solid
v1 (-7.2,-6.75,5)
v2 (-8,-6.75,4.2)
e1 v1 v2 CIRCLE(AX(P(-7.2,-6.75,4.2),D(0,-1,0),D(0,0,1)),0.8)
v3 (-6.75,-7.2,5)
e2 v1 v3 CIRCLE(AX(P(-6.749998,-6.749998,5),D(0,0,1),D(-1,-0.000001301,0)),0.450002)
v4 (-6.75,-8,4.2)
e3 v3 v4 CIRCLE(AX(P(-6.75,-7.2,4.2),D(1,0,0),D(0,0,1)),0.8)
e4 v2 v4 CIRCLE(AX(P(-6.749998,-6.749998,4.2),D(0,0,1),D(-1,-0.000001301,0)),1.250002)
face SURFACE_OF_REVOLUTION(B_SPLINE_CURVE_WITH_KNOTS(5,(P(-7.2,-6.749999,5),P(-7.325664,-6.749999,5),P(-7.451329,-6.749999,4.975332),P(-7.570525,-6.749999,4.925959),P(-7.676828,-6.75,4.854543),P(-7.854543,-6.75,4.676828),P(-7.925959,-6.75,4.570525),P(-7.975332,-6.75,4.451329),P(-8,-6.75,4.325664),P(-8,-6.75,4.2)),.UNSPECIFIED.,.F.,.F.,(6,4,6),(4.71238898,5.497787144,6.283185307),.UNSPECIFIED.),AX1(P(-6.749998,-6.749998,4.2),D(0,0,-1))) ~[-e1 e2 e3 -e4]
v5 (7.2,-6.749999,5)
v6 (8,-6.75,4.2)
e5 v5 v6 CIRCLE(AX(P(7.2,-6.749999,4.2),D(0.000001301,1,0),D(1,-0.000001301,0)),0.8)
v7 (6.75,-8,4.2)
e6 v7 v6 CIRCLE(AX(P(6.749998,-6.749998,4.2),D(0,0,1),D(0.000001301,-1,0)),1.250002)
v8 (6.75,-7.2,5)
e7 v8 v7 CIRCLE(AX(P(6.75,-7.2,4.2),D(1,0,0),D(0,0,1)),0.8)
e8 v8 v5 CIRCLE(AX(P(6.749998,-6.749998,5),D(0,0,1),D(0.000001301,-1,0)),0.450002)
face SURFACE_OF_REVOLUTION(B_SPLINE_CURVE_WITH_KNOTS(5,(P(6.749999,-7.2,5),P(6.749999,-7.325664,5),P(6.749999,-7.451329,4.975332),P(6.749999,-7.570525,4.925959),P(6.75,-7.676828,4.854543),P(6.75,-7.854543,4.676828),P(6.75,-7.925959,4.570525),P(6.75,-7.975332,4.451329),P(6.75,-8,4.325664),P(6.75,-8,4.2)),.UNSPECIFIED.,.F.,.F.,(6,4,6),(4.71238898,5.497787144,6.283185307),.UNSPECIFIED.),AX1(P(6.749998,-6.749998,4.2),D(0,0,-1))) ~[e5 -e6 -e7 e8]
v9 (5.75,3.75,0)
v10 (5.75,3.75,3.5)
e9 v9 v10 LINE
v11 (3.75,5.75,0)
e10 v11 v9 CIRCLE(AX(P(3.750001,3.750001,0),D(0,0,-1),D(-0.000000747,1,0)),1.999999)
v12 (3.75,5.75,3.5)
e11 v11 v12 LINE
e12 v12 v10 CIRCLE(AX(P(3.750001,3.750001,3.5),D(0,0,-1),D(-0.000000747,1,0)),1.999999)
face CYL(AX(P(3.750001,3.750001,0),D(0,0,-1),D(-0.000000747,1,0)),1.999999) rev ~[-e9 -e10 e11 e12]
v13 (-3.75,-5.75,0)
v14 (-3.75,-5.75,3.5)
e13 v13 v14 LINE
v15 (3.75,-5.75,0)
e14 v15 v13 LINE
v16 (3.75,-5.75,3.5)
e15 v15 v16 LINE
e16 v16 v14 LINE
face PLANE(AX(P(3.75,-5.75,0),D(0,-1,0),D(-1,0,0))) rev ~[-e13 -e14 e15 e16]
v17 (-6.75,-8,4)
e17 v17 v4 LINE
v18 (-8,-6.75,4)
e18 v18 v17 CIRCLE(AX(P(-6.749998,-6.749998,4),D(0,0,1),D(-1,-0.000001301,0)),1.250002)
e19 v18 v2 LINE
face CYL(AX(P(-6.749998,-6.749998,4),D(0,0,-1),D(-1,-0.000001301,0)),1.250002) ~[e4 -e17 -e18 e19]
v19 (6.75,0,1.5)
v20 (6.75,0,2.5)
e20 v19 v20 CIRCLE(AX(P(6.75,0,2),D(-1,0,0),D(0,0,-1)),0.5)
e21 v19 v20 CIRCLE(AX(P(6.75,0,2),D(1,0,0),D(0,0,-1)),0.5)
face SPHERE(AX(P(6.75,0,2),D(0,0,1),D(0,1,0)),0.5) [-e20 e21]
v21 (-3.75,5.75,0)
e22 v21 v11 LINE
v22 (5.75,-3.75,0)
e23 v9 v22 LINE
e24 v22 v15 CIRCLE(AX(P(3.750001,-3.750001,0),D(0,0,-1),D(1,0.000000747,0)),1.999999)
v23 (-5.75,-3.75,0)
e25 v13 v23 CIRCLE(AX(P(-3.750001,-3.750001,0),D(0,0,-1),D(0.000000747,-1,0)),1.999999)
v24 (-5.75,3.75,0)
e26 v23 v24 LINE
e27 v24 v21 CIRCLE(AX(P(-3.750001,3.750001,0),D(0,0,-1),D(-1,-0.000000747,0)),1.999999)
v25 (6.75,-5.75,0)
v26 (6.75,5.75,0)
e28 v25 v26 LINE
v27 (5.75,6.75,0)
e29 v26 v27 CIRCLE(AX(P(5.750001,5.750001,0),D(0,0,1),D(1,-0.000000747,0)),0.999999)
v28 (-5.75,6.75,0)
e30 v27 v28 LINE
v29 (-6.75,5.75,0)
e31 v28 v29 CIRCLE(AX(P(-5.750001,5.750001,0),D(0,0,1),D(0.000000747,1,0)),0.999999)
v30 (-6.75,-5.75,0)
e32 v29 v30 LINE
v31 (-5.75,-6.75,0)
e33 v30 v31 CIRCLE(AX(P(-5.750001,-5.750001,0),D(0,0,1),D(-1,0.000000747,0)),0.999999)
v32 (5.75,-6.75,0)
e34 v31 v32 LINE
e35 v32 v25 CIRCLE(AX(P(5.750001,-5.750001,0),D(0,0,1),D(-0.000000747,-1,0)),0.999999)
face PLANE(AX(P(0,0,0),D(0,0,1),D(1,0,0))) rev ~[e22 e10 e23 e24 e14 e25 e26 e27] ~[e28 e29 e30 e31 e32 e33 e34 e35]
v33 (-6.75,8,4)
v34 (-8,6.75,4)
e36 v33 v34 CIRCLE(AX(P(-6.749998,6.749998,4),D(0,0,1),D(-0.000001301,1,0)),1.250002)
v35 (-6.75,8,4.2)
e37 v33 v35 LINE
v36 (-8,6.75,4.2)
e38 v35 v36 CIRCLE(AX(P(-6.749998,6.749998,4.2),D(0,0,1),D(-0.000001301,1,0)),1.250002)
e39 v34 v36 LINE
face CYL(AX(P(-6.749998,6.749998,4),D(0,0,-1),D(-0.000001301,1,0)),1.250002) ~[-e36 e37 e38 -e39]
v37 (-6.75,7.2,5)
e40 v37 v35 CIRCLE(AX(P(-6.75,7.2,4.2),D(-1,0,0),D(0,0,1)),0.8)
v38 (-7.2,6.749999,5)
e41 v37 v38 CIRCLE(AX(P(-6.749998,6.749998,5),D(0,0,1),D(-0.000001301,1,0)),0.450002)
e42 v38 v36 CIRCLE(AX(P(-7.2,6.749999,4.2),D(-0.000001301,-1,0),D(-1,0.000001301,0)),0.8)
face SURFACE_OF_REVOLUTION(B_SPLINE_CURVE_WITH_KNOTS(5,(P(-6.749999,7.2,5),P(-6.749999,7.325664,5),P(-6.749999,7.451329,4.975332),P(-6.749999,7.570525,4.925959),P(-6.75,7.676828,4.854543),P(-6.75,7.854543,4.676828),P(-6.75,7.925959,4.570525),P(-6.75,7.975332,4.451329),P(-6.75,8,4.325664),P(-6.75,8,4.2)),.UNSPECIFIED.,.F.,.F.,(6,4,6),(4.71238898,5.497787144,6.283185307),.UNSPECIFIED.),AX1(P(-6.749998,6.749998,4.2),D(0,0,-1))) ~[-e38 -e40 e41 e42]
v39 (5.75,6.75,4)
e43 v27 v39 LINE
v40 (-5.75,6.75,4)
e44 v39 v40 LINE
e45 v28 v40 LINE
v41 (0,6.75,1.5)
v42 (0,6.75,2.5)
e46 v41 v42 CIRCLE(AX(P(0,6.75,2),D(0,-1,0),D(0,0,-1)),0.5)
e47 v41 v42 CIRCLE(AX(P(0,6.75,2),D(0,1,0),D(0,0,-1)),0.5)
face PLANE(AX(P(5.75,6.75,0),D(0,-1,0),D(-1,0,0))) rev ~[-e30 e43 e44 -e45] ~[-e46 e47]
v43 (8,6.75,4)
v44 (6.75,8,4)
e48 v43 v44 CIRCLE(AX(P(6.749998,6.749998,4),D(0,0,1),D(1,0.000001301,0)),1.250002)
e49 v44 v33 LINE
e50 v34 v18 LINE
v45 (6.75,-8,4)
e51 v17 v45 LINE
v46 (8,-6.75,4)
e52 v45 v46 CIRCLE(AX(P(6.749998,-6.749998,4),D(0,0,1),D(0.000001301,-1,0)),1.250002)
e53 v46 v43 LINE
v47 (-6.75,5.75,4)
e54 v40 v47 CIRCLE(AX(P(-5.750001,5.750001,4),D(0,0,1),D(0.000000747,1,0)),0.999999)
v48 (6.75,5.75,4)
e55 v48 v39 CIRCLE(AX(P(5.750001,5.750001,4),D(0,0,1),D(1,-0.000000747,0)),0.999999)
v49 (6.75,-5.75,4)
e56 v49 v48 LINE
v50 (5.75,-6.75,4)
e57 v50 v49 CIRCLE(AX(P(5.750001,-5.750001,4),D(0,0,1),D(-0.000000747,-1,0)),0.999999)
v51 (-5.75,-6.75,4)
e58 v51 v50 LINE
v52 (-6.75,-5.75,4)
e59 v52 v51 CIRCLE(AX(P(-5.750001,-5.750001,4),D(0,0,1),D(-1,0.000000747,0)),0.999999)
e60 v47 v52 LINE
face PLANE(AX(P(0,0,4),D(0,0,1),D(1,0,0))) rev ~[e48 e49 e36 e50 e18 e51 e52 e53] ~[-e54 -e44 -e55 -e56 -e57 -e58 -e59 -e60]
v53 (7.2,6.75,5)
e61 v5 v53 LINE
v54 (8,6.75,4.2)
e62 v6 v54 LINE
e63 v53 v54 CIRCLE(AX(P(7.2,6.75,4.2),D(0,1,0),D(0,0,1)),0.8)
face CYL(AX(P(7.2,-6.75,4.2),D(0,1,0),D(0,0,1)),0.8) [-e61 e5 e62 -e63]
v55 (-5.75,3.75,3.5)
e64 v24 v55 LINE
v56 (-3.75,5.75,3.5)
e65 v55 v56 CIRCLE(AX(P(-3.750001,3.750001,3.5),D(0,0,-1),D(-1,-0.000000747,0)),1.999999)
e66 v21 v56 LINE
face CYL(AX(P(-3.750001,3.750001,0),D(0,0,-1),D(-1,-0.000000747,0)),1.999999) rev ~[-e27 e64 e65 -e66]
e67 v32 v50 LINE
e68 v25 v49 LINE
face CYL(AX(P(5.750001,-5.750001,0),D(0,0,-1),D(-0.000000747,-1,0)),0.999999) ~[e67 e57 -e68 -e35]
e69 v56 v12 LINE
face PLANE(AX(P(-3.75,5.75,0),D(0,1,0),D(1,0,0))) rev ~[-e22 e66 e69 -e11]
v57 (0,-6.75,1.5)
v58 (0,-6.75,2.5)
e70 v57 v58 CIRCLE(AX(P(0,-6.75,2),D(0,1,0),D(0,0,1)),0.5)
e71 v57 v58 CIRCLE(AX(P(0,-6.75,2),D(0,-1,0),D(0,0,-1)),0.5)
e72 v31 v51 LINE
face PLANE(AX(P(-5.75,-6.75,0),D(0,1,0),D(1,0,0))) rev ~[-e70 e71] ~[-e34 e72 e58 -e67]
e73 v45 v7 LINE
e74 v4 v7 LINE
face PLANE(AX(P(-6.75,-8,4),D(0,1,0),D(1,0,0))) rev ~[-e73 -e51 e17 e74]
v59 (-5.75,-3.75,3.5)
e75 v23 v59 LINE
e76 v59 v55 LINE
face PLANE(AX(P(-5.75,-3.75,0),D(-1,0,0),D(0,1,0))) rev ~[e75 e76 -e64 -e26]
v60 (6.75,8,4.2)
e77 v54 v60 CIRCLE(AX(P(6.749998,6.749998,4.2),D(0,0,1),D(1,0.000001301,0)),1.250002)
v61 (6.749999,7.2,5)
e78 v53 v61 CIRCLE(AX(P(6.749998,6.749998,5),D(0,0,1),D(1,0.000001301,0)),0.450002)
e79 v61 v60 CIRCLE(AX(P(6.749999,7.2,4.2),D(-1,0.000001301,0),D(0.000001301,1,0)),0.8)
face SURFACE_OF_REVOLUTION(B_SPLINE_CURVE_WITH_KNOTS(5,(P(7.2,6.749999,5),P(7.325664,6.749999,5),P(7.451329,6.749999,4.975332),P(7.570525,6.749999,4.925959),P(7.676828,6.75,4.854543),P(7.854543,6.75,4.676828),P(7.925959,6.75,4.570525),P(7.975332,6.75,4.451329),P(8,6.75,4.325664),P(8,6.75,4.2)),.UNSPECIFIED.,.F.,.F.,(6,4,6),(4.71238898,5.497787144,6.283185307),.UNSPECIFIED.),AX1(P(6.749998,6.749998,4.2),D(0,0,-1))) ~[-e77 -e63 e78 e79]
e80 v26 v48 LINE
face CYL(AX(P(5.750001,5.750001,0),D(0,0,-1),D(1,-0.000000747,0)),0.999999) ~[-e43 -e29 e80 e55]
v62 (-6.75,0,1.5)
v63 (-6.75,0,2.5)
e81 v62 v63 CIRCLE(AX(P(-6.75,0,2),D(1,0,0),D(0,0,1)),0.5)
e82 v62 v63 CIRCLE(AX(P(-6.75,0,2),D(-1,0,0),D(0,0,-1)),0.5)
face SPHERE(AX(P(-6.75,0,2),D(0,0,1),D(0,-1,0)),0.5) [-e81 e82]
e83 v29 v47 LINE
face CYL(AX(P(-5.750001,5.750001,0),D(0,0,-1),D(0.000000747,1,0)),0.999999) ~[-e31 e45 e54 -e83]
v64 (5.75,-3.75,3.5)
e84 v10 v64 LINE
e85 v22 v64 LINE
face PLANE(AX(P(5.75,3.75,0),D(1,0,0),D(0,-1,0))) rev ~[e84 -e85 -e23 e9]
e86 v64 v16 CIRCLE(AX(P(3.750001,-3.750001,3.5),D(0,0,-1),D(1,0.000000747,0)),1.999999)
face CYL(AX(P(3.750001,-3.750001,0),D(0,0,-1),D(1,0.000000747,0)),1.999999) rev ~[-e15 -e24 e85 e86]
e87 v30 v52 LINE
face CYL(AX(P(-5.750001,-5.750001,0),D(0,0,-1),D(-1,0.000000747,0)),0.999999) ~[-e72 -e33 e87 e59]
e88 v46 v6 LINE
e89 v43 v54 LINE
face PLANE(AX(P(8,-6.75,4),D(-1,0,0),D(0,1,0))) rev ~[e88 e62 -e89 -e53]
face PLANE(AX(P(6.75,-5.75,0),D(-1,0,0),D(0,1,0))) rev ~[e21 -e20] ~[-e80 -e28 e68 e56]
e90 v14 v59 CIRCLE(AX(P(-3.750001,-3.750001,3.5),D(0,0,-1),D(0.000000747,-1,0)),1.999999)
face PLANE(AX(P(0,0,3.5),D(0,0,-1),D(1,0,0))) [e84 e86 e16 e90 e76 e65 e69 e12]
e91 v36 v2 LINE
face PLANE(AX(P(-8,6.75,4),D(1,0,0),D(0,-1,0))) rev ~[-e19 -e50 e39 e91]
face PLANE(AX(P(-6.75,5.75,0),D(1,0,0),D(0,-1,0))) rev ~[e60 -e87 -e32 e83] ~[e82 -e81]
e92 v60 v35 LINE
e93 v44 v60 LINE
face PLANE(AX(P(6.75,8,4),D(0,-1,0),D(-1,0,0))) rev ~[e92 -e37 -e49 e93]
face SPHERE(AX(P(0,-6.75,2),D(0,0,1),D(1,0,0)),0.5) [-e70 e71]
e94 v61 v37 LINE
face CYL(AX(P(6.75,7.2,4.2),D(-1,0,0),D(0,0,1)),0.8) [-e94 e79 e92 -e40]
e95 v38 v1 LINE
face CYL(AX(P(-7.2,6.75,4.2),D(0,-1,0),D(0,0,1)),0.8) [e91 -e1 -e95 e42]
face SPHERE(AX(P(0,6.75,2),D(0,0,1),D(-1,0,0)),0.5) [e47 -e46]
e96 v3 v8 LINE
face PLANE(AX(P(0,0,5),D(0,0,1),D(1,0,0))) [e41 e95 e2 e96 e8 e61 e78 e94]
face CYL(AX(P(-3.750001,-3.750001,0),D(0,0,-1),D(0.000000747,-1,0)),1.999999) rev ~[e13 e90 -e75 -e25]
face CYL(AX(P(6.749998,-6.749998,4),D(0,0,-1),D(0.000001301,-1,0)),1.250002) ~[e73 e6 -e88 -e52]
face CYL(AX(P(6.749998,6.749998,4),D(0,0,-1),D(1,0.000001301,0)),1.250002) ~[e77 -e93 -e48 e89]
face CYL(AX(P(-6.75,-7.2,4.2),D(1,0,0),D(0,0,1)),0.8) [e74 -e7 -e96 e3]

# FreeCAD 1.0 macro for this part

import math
import FreeCAD as App
import Part
import Sketcher


def edges_at(feature, points):
    """Names of the edges that pass closest to the given points."""
    edges = feature.Shape.Edges
    near = lambda p: min(range(len(edges)), key=lambda i: edges[i].distToShape(Part.Vertex(*p))[0])
    return sorted({f"Edge{near(p) + 1}" for p in points})

doc = App.newDocument("Part")
body = doc.addObject("PartDesign::Body", "Body")

# Sketch on XY plane
sketch1 = doc.addObject("Sketcher::SketchObject", "Sketch")
body.addObject(sketch1)
sketch1.AttachmentSupport = (doc.XY_Plane, [""])
sketch1.MapMode = "FlatFace"
sketch1.addGeometry([
    Part.LineSegment(App.Vector(5.75, 6.75, 0), App.Vector(-5.75, 6.75, 0)),  # 0
    Part.ArcOfCircle(Part.Circle(App.Vector(-5.750001, 5.750001, 0), App.Vector(0, 0, 1), 0.999999), math.radians(89.999957), math.radians(180.000043)),  # 1
    Part.LineSegment(App.Vector(-6.75, 5.75, 0), App.Vector(-6.75, -5.75, 0)),  # 2
    Part.ArcOfCircle(Part.Circle(App.Vector(-5.750001, -5.750001, 0), App.Vector(0, 0, 1), 0.999999), math.radians(179.999957), math.radians(270.000043)),  # 3
    Part.LineSegment(App.Vector(-5.75, -6.75, 0), App.Vector(5.75, -6.75, 0)),  # 4
    Part.ArcOfCircle(Part.Circle(App.Vector(5.750001, -5.750001, 0), App.Vector(0, 0, 1), 0.999999), math.radians(-90.000043), math.radians(0.000043)),  # 5
    Part.LineSegment(App.Vector(6.75, -5.75, 0), App.Vector(6.75, 5.75, 0)),  # 6
    Part.ArcOfCircle(Part.Circle(App.Vector(5.750001, 5.750001, 0), App.Vector(0, 0, 1), 0.999999), math.radians(-0.000043), math.radians(90.000043)),  # 7
], False)
sketch1.addConstraint([
    Sketcher.Constraint("Tangent", 0, 2, 1, 1),
    Sketcher.Constraint("Tangent", 1, 2, 2, 1),
    Sketcher.Constraint("Tangent", 2, 2, 3, 1),
    Sketcher.Constraint("Tangent", 3, 2, 4, 1),
    Sketcher.Constraint("Tangent", 4, 2, 5, 1),
    Sketcher.Constraint("Tangent", 5, 2, 6, 1),
    Sketcher.Constraint("Tangent", 6, 2, 7, 1),
    Sketcher.Constraint("Tangent", 7, 2, 0, 1),
    Sketcher.Constraint("Horizontal", 0),
    Sketcher.Constraint("Vertical", 2),
    Sketcher.Constraint("Horizontal", 4),
    Sketcher.Constraint("Vertical", 6),
    Sketcher.Constraint("Equal", 1, 3),
    Sketcher.Constraint("Equal", 3, 5),
    Sketcher.Constraint("Equal", 5, 7),
    Sketcher.Constraint("Symmetric", 1, 3, 5, 3, -1, 1),
    Sketcher.Constraint("Equal", 4, 2),
    Sketcher.Constraint("Radius", 1, 0.999999),
    Sketcher.Constraint("DistanceX", 0, 2, 0, 1, 11.5),
])
pad1 = doc.addObject("PartDesign::Pad", "Pad")
body.addObject(pad1)
pad1.Profile = sketch1
pad1.Length = 4

# Sketch on XY plane
sketch2 = doc.addObject("Sketcher::SketchObject", "Sketch001")
body.addObject(sketch2)
sketch2.AttachmentSupport = (doc.XY_Plane, [""])
sketch2.MapMode = "FlatFace"
sketch2.AttachmentOffset = App.Placement(App.Vector(0, 0, 4), App.Rotation())
sketch2.addGeometry([
    Part.LineSegment(App.Vector(6.75, 8, 0), App.Vector(-6.75, 8, 0)),  # 0
    Part.ArcOfCircle(Part.Circle(App.Vector(-6.749998, 6.749998, 0), App.Vector(0, 0, 1), 1.250002), math.radians(90.000075), math.radians(179.999925)),  # 1
    Part.LineSegment(App.Vector(-8, 6.75, 0), App.Vector(-8, -6.75, 0)),  # 2
    Part.ArcOfCircle(Part.Circle(App.Vector(-6.749998, -6.749998, 0), App.Vector(0, 0, 1), 1.250002), math.radians(-179.999925), math.radians(-90.000075)),  # 3
    Part.LineSegment(App.Vector(-6.75, -8, 0), App.Vector(6.75, -8, 0)),  # 4
    Part.ArcOfCircle(Part.Circle(App.Vector(6.749998, -6.749998, 0), App.Vector(0, 0, 1), 1.250002), math.radians(-89.999925), math.radians(-0.000075)),  # 5
    Part.LineSegment(App.Vector(8, -6.75, 0), App.Vector(8, 6.75, 0)),  # 6
    Part.ArcOfCircle(Part.Circle(App.Vector(6.749998, 6.749998, 0), App.Vector(0, 0, 1), 1.250002), math.radians(0.000075), math.radians(89.999925)),  # 7
], False)
sketch2.addConstraint([
    Sketcher.Constraint("Tangent", 0, 2, 1, 1),
    Sketcher.Constraint("Tangent", 1, 2, 2, 1),
    Sketcher.Constraint("Tangent", 2, 2, 3, 1),
    Sketcher.Constraint("Tangent", 3, 2, 4, 1),
    Sketcher.Constraint("Tangent", 4, 2, 5, 1),
    Sketcher.Constraint("Tangent", 5, 2, 6, 1),
    Sketcher.Constraint("Tangent", 6, 2, 7, 1),
    Sketcher.Constraint("Tangent", 7, 2, 0, 1),
    Sketcher.Constraint("Horizontal", 0),
    Sketcher.Constraint("Vertical", 2),
    Sketcher.Constraint("Horizontal", 4),
    Sketcher.Constraint("Vertical", 6),
    Sketcher.Constraint("Equal", 1, 3),
    Sketcher.Constraint("Equal", 3, 5),
    Sketcher.Constraint("Equal", 5, 7),
    Sketcher.Constraint("Symmetric", 1, 3, 5, 3, -1, 1),
    Sketcher.Constraint("Equal", 4, 2),
    Sketcher.Constraint("Radius", 1, 1.250002),
    Sketcher.Constraint("DistanceX", 0, 2, 0, 1, 13.5),
])
pad2 = doc.addObject("PartDesign::Pad", "Pad001")
body.addObject(pad2)
pad2.Profile = sketch2
pad2.Length = 1
doc.recompute()

fillet = doc.addObject("PartDesign::Fillet", "Fillet")
body.addObject(fillet)
fillet.Base = (pad2, edges_at(pad2, [
    (0, -8, 5),
    (-7.634, -7.634, 5),
    (-8, 0, 5),
    (-7.634, 7.634, 5),
    (0, 8, 5),
    (7.634, 7.634, 5),
    (8, 0, 5),
    (7.634, -7.634, 5),
]))
fillet.Radius = 0.8

# Sketch on XZ plane
sketch3 = doc.addObject("Sketcher::SketchObject", "Sketch002")
body.addObject(sketch3)
sketch3.AttachmentSupport = (doc.XZ_Plane, [""])
sketch3.MapMode = "FlatFace"
sketch3.AttachmentOffset = App.Placement(App.Vector(0, 0, 6.75), App.Rotation())
sketch3.addGeometry([
    Part.ArcOfCircle(Part.Circle(App.Vector(0, 2, 0), App.Vector(0, 0, 1), 0.5), math.radians(-90), math.radians(90)),
    Part.LineSegment(App.Vector(0, 2.5, 0), App.Vector(0, 1.5, 0)),
], False)
sketch3.addConstraint([
    Sketcher.Constraint("Coincident", 0, 1, 1, 2),
    Sketcher.Constraint("Coincident", 1, 1, 0, 2),
    Sketcher.Constraint("Vertical", 1),
    Sketcher.Constraint("PointOnObject", 0, 3, -2),
    Sketcher.Constraint("PointOnObject", 0, 1, -2),
    Sketcher.Constraint("Radius", 0, 0.5),
    Sketcher.Constraint("DistanceY", -1, 1, 0, 3, 2.0),
])
revolution = doc.addObject("PartDesign::Revolution", "Revolution")
body.addObject(revolution)
revolution.Profile = sketch3
revolution.ReferenceAxis = (sketch3, ["V_Axis"])
revolution.Angle = 360
doc.recompute()

polarpattern = doc.addObject("PartDesign::PolarPattern", "PolarPattern")
body.addObject(polarpattern)
polarpattern.Originals = [revolution]
polarpattern.Axis = (doc.Z_Axis, [""])
polarpattern.Angle = 360
polarpattern.Occurrences = 4
body.Tip = polarpattern

# Sketch on XY plane
sketch4 = doc.addObject("Sketcher::SketchObject", "Sketch003")
body.addObject(sketch4)
sketch4.AttachmentSupport = (doc.XY_Plane, [""])
sketch4.MapMode = "FlatFace"
sketch4.addGeometry([
    Part.LineSegment(App.Vector(-5.75, -3.75, 0), App.Vector(-5.75, 3.75, 0)),  # 0
    Part.ArcOfCircle(Part.Circle(App.Vector(-3.750001, 3.750001, 0), App.Vector(0, 0, 1), 1.999999), math.radians(89.999957), math.radians(180.000043)),  # 1
    Part.LineSegment(App.Vector(-3.75, 5.75, 0), App.Vector(3.75, 5.75, 0)),  # 2
    Part.ArcOfCircle(Part.Circle(App.Vector(3.750001, 3.750001, 0), App.Vector(0, 0, 1), 1.999999), math.radians(-0.000043), math.radians(90.000043)),  # 3
    Part.LineSegment(App.Vector(5.75, 3.75, 0), App.Vector(5.75, -3.75, 0)),  # 4
    Part.ArcOfCircle(Part.Circle(App.Vector(3.750001, -3.750001, 0), App.Vector(0, 0, 1), 1.999999), math.radians(-90.000043), math.radians(0.000043)),  # 5
    Part.LineSegment(App.Vector(3.75, -5.75, 0), App.Vector(-3.75, -5.75, 0)),  # 6
    Part.ArcOfCircle(Part.Circle(App.Vector(-3.750001, -3.750001, 0), App.Vector(0, 0, 1), 1.999999), math.radians(179.999957), math.radians(270.000043)),  # 7
], False)
sketch4.addConstraint([
    Sketcher.Constraint("Tangent", 0, 2, 1, 2),
    Sketcher.Constraint("Tangent", 1, 1, 2, 1),
    Sketcher.Constraint("Tangent", 2, 2, 3, 2),
    Sketcher.Constraint("Tangent", 3, 1, 4, 1),
    Sketcher.Constraint("Tangent", 4, 2, 5, 2),
    Sketcher.Constraint("Tangent", 5, 1, 6, 1),
    Sketcher.Constraint("Tangent", 6, 2, 7, 2),
    Sketcher.Constraint("Tangent", 7, 1, 0, 1),
    Sketcher.Constraint("Vertical", 0),
    Sketcher.Constraint("Horizontal", 2),
    Sketcher.Constraint("Vertical", 4),
    Sketcher.Constraint("Horizontal", 6),
    Sketcher.Constraint("Equal", 1, 3),
    Sketcher.Constraint("Equal", 3, 5),
    Sketcher.Constraint("Equal", 5, 7),
    Sketcher.Constraint("Symmetric", 1, 3, 5, 3, -1, 1),
    Sketcher.Constraint("Equal", 6, 0),
    Sketcher.Constraint("Radius", 1, 1.999999),
    Sketcher.Constraint("DistanceX", 2, 1, 2, 2, 7.5),
])
pocket1 = doc.addObject("PartDesign::Pocket", "Pocket")
body.addObject(pocket1)
pocket1.Profile = sketch4
pocket1.Length = 3.5
pocket1.Reversed = True

doc.recompute()
